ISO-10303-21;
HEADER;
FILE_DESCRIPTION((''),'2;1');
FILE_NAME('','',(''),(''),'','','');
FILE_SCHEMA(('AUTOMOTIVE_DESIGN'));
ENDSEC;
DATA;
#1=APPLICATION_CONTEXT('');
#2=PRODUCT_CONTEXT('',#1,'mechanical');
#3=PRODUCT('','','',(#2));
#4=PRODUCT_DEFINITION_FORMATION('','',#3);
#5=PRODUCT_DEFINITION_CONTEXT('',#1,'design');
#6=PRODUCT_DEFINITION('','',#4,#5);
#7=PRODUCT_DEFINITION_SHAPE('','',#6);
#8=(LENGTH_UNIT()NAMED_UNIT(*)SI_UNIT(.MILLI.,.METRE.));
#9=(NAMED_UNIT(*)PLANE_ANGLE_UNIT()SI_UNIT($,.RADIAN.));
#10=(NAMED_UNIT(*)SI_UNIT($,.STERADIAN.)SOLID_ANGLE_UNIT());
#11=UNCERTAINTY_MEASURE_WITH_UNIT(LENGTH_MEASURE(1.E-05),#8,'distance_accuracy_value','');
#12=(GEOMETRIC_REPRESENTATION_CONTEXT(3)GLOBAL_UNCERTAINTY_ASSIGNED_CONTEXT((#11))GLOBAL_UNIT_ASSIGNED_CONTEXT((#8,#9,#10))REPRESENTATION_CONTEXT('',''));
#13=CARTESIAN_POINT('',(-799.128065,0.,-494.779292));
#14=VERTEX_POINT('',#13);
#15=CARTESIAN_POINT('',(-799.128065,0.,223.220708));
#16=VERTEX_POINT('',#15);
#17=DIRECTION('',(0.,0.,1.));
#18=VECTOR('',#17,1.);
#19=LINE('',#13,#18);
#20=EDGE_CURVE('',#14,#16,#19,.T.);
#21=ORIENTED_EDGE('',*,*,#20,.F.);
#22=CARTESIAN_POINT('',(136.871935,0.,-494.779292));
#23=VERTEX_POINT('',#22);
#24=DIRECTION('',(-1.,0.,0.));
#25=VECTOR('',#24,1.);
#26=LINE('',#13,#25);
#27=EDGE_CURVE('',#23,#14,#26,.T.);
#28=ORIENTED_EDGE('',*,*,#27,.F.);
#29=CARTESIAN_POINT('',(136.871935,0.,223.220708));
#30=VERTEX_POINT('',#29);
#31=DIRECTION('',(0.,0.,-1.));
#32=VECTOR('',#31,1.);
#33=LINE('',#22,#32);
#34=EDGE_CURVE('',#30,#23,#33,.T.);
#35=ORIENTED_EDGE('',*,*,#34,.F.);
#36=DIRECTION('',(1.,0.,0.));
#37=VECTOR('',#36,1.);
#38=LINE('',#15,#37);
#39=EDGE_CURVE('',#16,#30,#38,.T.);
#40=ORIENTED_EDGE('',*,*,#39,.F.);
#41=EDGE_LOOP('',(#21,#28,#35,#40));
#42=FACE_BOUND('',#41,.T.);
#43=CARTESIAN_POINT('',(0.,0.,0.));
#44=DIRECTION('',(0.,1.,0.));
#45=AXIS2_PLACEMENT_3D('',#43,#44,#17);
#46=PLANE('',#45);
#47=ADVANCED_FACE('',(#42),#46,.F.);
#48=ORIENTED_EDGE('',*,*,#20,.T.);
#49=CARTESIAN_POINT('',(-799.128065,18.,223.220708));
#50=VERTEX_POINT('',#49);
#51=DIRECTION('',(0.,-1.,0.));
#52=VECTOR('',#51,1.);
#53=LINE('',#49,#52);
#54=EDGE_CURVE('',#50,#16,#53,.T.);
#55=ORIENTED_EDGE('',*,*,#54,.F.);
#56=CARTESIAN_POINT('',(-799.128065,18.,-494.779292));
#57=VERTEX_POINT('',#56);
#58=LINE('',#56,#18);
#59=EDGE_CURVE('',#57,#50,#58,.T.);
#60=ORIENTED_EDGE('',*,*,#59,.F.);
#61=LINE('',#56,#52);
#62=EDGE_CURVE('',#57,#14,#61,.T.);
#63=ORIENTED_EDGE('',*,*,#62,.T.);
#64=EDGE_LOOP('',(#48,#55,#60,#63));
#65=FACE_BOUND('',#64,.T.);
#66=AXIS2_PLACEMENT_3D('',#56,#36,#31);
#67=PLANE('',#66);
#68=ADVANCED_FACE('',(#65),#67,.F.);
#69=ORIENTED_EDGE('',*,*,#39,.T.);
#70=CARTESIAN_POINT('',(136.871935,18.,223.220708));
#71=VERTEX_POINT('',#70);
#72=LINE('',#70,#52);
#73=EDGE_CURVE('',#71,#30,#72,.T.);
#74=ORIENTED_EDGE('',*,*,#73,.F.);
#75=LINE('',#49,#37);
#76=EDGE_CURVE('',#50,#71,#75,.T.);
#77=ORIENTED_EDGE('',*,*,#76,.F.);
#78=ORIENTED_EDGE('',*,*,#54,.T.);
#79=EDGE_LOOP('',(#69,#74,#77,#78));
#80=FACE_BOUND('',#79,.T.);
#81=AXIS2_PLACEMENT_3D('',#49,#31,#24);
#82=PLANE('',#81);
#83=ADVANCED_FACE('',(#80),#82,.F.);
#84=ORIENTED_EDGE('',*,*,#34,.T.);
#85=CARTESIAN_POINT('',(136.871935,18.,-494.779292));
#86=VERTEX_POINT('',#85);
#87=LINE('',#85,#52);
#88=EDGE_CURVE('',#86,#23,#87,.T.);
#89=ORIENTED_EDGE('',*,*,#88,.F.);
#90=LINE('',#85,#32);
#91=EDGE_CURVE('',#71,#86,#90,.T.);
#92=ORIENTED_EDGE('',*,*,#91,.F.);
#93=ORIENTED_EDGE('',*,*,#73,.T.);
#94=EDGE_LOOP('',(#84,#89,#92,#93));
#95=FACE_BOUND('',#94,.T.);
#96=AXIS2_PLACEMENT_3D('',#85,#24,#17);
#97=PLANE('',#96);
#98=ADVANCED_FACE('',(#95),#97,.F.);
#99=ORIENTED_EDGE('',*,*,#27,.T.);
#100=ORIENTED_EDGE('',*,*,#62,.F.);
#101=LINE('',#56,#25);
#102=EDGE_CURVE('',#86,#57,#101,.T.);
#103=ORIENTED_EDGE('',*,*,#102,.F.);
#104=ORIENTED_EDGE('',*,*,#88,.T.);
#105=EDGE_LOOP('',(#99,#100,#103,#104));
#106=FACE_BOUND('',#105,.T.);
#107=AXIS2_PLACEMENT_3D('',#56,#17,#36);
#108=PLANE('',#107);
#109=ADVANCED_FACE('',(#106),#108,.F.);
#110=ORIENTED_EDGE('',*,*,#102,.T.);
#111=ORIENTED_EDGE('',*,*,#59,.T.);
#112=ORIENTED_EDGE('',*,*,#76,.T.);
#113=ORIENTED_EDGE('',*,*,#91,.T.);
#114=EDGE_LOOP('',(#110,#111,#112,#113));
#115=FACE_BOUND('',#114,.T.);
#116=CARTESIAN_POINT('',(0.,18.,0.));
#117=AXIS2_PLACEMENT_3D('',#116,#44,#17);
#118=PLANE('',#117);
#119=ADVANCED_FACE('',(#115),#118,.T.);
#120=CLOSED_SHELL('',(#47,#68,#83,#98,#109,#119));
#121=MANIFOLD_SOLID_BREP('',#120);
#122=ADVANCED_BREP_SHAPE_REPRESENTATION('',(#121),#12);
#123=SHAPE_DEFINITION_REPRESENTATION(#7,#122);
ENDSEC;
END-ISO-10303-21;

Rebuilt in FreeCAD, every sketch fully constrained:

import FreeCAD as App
import Part
import Sketcher

doc = App.newDocument("Part")
body = doc.addObject("PartDesign::Body", "Body")

sketch1 = doc.addObject("Sketcher::SketchObject", "Sketch")
body.addObject(sketch1)
sketch1.AttachmentSupport = (doc.XZ_Plane, [""])
sketch1.MapMode = "FlatFace"
sketch1.addGeometry([
    Part.LineSegment(App.Vector(-799, -495, 0), App.Vector(-799, 223, 0)),
    Part.LineSegment(App.Vector(-799, 223, 0), App.Vector(137, 223, 0)),
    Part.LineSegment(App.Vector(137, 223, 0), App.Vector(137, -495, 0)),
    Part.LineSegment(App.Vector(137, -495, 0), App.Vector(-799, -495, 0)),
], False)
sketch1.addConstraint([
    Sketcher.Constraint("Coincident", 0, 2, 1, 1),
    Sketcher.Constraint("Coincident", 1, 2, 2, 1),
    Sketcher.Constraint("Coincident", 2, 2, 3, 1),
    Sketcher.Constraint("Coincident", 3, 2, 0, 1),
    Sketcher.Constraint("Vertical", 0),
    Sketcher.Constraint("Horizontal", 1),
    Sketcher.Constraint("Vertical", 2),
    Sketcher.Constraint("Horizontal", 3),
    Sketcher.Constraint("DistanceX", 1, 1, 1, 2, 936.0),
    Sketcher.Constraint("DistanceY", 0, 1, 0, 2, 718.0),
    Sketcher.Constraint("DistanceY", -1, 1, 0, 2, 223.220708),
    Sketcher.Constraint("DistanceX", 0, 2, -1, 1, 799.128065),
])
pad1 = doc.addObject("PartDesign::Pad", "Pad")
body.addObject(pad1)
pad1.Profile = sketch1
pad1.Length = 18
pad1.Reversed = True

doc.recompute()
